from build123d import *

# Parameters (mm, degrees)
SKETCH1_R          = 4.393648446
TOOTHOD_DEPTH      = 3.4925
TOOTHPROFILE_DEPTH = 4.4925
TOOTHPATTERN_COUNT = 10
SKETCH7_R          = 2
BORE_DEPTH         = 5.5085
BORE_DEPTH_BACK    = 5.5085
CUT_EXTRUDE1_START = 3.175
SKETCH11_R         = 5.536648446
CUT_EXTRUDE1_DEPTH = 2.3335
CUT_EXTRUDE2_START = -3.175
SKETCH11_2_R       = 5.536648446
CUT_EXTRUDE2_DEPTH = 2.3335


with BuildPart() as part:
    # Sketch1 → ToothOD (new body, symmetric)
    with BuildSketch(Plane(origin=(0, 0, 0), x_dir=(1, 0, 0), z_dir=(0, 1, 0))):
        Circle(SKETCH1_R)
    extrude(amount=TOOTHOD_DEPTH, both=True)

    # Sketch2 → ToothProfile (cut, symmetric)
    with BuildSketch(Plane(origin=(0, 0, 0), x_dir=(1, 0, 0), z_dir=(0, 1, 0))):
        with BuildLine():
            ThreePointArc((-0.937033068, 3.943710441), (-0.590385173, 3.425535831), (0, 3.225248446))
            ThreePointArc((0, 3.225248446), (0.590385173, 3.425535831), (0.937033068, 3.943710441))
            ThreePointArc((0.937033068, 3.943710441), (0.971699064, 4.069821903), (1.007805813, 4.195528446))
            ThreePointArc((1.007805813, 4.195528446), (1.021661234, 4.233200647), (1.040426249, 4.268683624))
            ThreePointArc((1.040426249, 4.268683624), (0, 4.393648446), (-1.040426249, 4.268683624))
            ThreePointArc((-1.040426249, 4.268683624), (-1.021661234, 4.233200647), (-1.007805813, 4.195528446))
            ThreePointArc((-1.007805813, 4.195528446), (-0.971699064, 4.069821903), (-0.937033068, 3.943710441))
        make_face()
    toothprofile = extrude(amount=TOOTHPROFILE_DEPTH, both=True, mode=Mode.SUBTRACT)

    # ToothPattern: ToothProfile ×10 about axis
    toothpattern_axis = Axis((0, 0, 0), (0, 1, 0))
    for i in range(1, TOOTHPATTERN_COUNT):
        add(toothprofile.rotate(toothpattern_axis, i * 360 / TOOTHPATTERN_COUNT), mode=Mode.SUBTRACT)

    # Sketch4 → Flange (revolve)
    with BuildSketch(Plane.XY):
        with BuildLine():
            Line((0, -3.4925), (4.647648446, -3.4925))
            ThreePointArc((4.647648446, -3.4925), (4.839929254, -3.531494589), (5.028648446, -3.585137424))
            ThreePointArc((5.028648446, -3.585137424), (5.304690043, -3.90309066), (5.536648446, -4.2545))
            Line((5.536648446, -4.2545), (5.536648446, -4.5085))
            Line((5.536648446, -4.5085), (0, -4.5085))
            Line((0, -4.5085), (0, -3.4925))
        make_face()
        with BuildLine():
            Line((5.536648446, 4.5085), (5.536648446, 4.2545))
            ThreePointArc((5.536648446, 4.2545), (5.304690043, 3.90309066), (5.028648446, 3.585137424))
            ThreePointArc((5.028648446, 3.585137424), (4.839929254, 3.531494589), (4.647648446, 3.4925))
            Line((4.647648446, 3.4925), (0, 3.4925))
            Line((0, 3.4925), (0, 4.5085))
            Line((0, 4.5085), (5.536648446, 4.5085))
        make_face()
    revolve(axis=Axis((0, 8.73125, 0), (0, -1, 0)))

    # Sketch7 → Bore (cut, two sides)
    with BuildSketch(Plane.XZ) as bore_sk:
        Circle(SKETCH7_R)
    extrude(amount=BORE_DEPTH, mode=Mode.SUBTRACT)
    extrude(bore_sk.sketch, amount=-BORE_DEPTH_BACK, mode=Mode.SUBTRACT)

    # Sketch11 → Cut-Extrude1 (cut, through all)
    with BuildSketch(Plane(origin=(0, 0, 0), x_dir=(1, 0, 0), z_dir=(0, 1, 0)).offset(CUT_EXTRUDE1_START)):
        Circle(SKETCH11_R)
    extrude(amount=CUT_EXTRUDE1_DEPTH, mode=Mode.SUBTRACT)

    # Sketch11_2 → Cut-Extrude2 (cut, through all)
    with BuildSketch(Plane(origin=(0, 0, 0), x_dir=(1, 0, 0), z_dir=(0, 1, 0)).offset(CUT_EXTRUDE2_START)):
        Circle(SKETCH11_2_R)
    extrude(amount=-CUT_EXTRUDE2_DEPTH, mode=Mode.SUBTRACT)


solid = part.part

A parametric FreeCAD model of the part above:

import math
import FreeCAD as App
import Part
import Sketcher
Q = App.Units.Quantity

doc = App.newDocument("Part")
body = doc.addObject("PartDesign::Body", "Body")

sketch1 = body.newObject("Sketcher::SketchObject", "Sketch")
sketch1.AttachmentSupport = (doc.getObject("XZ_Plane"), [""])
sketch1.MapMode = "FlatFace"
sketch1.addGeometry(Part.Circle(App.Vector(0, 0, 0), App.Vector(0, 0, 1), 4.4), False)
sketch1.addConstraint([
    Sketcher.Constraint("Coincident", 0, 3, -1, 1),
    Sketcher.Constraint("Diameter", 0, Q("8.787297 mm")),
])
pad1 = body.newObject("PartDesign::Pad", "Pad")
pad1.Profile = sketch1
pad1.Length = Q("0.275 in")
pad1.Midplane = True

sketch2 = body.newObject("Sketcher::SketchObject", "Sketch001")
sketch2.AttachmentSupport = (doc.getObject("XZ_Plane"), [""])
sketch2.MapMode = "FlatFace"
sketch2.addGeometry([
    Part.ArcOfCircle(Part.Circle(App.Vector(0, -4.2, 0), App.Vector(0, 0, 1), 0.97), math.radians(90), math.radians(165)),
    Part.ArcOfCircle(Part.Circle(App.Vector(0, -4.2, 0), App.Vector(0, 0, 1), 0.97), math.radians(15), math.radians(90)),
    Part.ArcOfCircle(Part.Circle(App.Vector(11.98, -0.98, 0), App.Vector(0, 0, 1), 11.43), math.radians(-164.96), math.radians(-163.65)),
    Part.ArcOfCircle(Part.Circle(App.Vector(1.3, -4.11, 0), App.Vector(0, 0, 1), 0.3), math.radians(-163.65), math.radians(-148.29)),
    Part.ArcOfCircle(Part.Circle(App.Vector(0, 0, 0), App.Vector(0, 0, 1), 4.39), math.radians(-104), math.radians(-76)),
    Part.ArcOfCircle(Part.Circle(App.Vector(-1.3, -4.11, 0), App.Vector(0, 0, 1), 0.3), math.radians(-31.71), math.radians(-16.35)),
    Part.ArcOfCircle(Part.Circle(App.Vector(-11.98, -0.98, 0), App.Vector(0, 0, 1), 11.43), math.radians(-16.35), math.radians(-15.04)),
], False)
sketch2.addConstraint([
    Sketcher.Constraint("Tangent", 0, 1, 1, 2),
    Sketcher.Constraint("Tangent", 1, 1, 2, 1),
    Sketcher.Constraint("Tangent", 2, 2, 3, 1),
    Sketcher.Constraint("Coincident", 3, 2, 4, 2),
    Sketcher.Constraint("Coincident", 4, 1, 5, 1),
    Sketcher.Constraint("Tangent", 5, 2, 6, 1),
    Sketcher.Constraint("Tangent", 6, 2, 0, 2),
    Sketcher.Constraint("Coincident", 4, 3, -1, 1),
    Sketcher.Constraint("Equal", 0, 1),
    Sketcher.Constraint("Equal", 3, 5),
    Sketcher.Constraint("Equal", 2, 6),
    Sketcher.Constraint("Symmetric", 3, 3, 5, 3, -2),
    Sketcher.Constraint("PointOnObject", 0, 3, -2),
    Sketcher.Constraint("PointOnObject", 0, 1, -2),
    Sketcher.Constraint("Horizontal", 1, 3, 2, 2),
    Sketcher.Constraint("Radius", 0, Q("0.0382 in")),
    Sketcher.Constraint("Radius", 3, Q("0.0118 in")),
    Sketcher.Constraint("DistanceX", -1, 1, 3, 3, Q("0.051 in")),
    Sketcher.Constraint("Radius", 4, Q("4.393648 mm")),
    Sketcher.Constraint("Radius", 2, Q("11.430007 mm")),
    Sketcher.Constraint("DistanceY", 0, 3, -1, 1, Q("4.195528 mm")),
])
pocket1 = body.newObject("PartDesign::Pocket", "Pocket")
pocket1.Profile = sketch2
pocket1.Length = 8.985
pocket1.Midplane = True
doc.recompute()

polarpattern = body.newObject("PartDesign::PolarPattern", "PolarPattern")
polarpattern.Originals = [pocket1]
polarpattern.Axis = (doc.getObject("Y_Axis"), [""])
polarpattern.Angle = 360
polarpattern.Occurrences = 10
body.Tip = polarpattern

sketch3 = body.newObject("Sketcher::SketchObject", "Sketch002")
sketch3.AttachmentSupport = (doc.getObject("XY_Plane"), [""])
sketch3.MapMode = "FlatFace"
sketch3.addGeometry([
    Part.LineSegment(App.Vector(4.65, -3.49, 0), App.Vector(0, -3.49, 0)),
    Part.LineSegment(App.Vector(0, -3.49, 0), App.Vector(0, -4.51, 0)),
    Part.LineSegment(App.Vector(0, -4.51, 0), App.Vector(5.54, -4.51, 0)),
    Part.LineSegment(App.Vector(5.54, -4.51, 0), App.Vector(5.54, -4.25, 0)),
    Part.ArcOfCircle(Part.Circle(App.Vector(2.75, -5.84, 0), App.Vector(0, 0, 1), 3.2), math.radians(29.66), math.radians(44.73)),
    Part.ArcOfCircle(Part.Circle(App.Vector(4.24, -6.01, 0), App.Vector(0, 0, 1), 2.55), math.radians(71.93), math.radians(80.74)),
    Part.LineSegment(App.Vector(5.54, 4.25, 0), App.Vector(5.54, 4.51, 0)),
    Part.LineSegment(App.Vector(5.54, 4.51, 0), App.Vector(0, 4.51, 0)),
    Part.LineSegment(App.Vector(0, 4.51, 0), App.Vector(0, 3.49, 0)),
    Part.LineSegment(App.Vector(0, 3.49, 0), App.Vector(4.65, 3.49, 0)),
    Part.ArcOfCircle(Part.Circle(App.Vector(4.24, 6.01, 0), App.Vector(0, 0, 1), 2.55), math.radians(-80.74), math.radians(-71.93)),
    Part.ArcOfCircle(Part.Circle(App.Vector(2.75, 5.84, 0), App.Vector(0, 0, 1), 3.2), math.radians(-44.73), math.radians(-29.66)),
], False)
sketch3.addConstraint([
    Sketcher.Constraint("Coincident", 0, 2, 1, 1),
    Sketcher.Constraint("Coincident", 1, 2, 2, 1),
    Sketcher.Constraint("Coincident", 2, 2, 3, 1),
    Sketcher.Constraint("Coincident", 3, 2, 4, 1),
    Sketcher.Constraint("Coincident", 4, 2, 5, 1),
    Sketcher.Constraint("Coincident", 5, 2, 0, 1),
    Sketcher.Constraint("Coincident", 6, 2, 7, 1),
    Sketcher.Constraint("Coincident", 7, 2, 8, 1),
    Sketcher.Constraint("Coincident", 8, 2, 9, 1),
    Sketcher.Constraint("Coincident", 9, 2, 10, 1),
    Sketcher.Constraint("Coincident", 10, 2, 11, 1),
    Sketcher.Constraint("Coincident", 11, 2, 6, 1),
    Sketcher.Constraint("Horizontal", 0),
    Sketcher.Constraint("Vertical", 1),
    Sketcher.Constraint("Horizontal", 2),
    Sketcher.Constraint("Vertical", 3),
    Sketcher.Constraint("Vertical", 6),
    Sketcher.Constraint("Horizontal", 7),
    Sketcher.Constraint("Vertical", 8),
    Sketcher.Constraint("Horizontal", 9),
    Sketcher.Constraint("Equal", 5, 10),
    Sketcher.Constraint("Equal", 4, 11),
    Sketcher.Constraint("Symmetric", 1, 2, 7, 2, -1, 1),
    Sketcher.Constraint("Symmetric", 5, 3, 10, 3, -1),
    Sketcher.Constraint("Symmetric", 4, 3, 11, 3, -1),
    Sketcher.Constraint("Symmetric", 0, 2, 8, 2, -1),
    Sketcher.Constraint("Vertical", 3, 2, 6, 2),
    Sketcher.Constraint("DistanceY", 1, 2, 1, 1, Q("0.04 in")),
    Sketcher.Constraint("DistanceY", 3, 1, 3, 2, Q("0.01 in")),
    Sketcher.Constraint("DistanceX", 4, 2, 3, 2, Q("0.02 in")),
    Sketcher.Constraint("DistanceX", 5, 2, 4, 2, Q("0.015 in")),
    Sketcher.Constraint("DistanceY", 5, 2, 6, 2, Q("0.315 in")),
    Sketcher.Constraint("Radius", 4, Q("3.203644 mm")),
    Sketcher.Constraint("Radius", 5, Q("2.553395 mm")),
    Sketcher.Constraint("DistanceX", 0, 2, 0, 1, Q("4.647648 mm")),
    Sketcher.Constraint("DistanceX", 4, 3, 5, 3, Q("1.483909 mm")),
])
revolution = body.newObject("PartDesign::Revolution", "Revolution")
revolution.Profile = sketch3
revolution.ReferenceAxis = (sketch3, ["V_Axis"])
revolution.Angle = 360

sketch4 = body.newObject("Sketcher::SketchObject", "Sketch003")
sketch4.AttachmentSupport = (doc.getObject("XZ_Plane"), [""])
sketch4.MapMode = "FlatFace"
sketch4.addGeometry(Part.Circle(App.Vector(0, 0, 0), App.Vector(0, 0, 1), 2), False)
sketch4.addConstraint([
    Sketcher.Constraint("Coincident", 0, 3, -1, 1),
    Sketcher.Constraint("Diameter", 0, Q("4 mm")),
])
pocket2 = body.newObject("PartDesign::Pocket", "Pocket001")
pocket2.Profile = sketch4
pocket2.Type = "ThroughAll"
pocket2.Midplane = True

sketch5 = body.newObject("Sketcher::SketchObject", "Sketch004")
sketch5.AttachmentSupport = (doc.getObject("XZ_Plane"), [""])
sketch5.MapMode = "FlatFace"
sketch5.AttachmentOffset = App.Placement(App.Vector(0, 0, -0.125 * 25.4), App.Rotation())
sketch5.addGeometry(Part.Circle(App.Vector(0, 0, 0), App.Vector(0, 0, 1), 6), False)
sketch5.addConstraint([
    Sketcher.Constraint("Coincident", 0, 3, -1, 1),
    Sketcher.Constraint("Diameter", 0, Q("11.073297 mm")),
])
pocket3 = body.newObject("PartDesign::Pocket", "Pocket002")
pocket3.Profile = sketch5
pocket3.Type = "ThroughAll"

sketch6 = body.newObject("Sketcher::SketchObject", "Sketch005")
sketch6.AttachmentSupport = (doc.getObject("XZ_Plane"), [""])
sketch6.MapMode = "FlatFace"
sketch6.AttachmentOffset = App.Placement(App.Vector(0, 0, 0.125 * 25.4), App.Rotation())
sketch6.addGeometry(Part.Circle(App.Vector(0, 0, 0), App.Vector(0, 0, 1), 6), False)
sketch6.addConstraint([
    Sketcher.Constraint("Coincident", 0, 3, -1, 1),
    Sketcher.Constraint("Diameter", 0, Q("11.073297 mm")),
])
pocket4 = body.newObject("PartDesign::Pocket", "Pocket003")
pocket4.Profile = sketch6
pocket4.Type = "ThroughAll"
pocket4.Reversed = True

doc.recompute()
